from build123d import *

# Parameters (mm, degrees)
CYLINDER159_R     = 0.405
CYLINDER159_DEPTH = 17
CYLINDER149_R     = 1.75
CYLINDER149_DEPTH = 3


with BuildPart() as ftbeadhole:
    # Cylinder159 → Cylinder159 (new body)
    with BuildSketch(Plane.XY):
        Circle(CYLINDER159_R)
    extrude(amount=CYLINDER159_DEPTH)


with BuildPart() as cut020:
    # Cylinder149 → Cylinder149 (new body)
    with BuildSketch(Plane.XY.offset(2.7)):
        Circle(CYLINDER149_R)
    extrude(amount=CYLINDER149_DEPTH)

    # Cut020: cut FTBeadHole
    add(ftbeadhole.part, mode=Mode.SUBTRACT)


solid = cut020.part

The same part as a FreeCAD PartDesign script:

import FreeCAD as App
import Part
import Sketcher

V = App.Vector
Q = App.Units.Quantity

doc = App.newDocument("Part")
params = doc.addObject("Spreadsheet::Sheet", "Params")
for row, (alias, value) in enumerate([
    ("sketch1_diameter", "0.81 mm"),
    ("pad1_length", "17 mm"),
    ("sketch2_diameter", "3.5 mm"),
    ("pad2_length", "3 mm"),
], start=1):
    params.set(f"A{row}", alias)
    params.set(f"B{row}", "=" + value)
    params.setAlias(f"B{row}", alias)

body = doc.addObject("PartDesign::Body", "Body")

sketch1 = body.newObject("Sketcher::SketchObject", "Sketch")
sketch1.AttachmentSupport = (doc.getObject("XY_Plane"), [""])
sketch1.MapMode = "FlatFace"
sketch1.addGeometry(Part.Circle(V(0, 0, 0), V(0, 0, 1), 0.41), False)
sketch1.addConstraint([
    Sketcher.Constraint("Coincident", 0, 3, -1, 1),
    Sketcher.Constraint("Diameter", 0, Q("0.81 mm")),
])
sketch1.setExpression("Constraints[1]", "Params.sketch1_diameter")
pad1 = body.newObject("PartDesign::Pad", "Pad")
pad1.Profile = sketch1
pad1.setExpression("Length", "Params.pad1_length")
body2 = doc.addObject("PartDesign::Body", "Body001")

sketch2 = body2.newObject("Sketcher::SketchObject", "Sketch001")
sketch2.AttachmentSupport = (doc.getObject("XY_Plane001"), [""])
sketch2.MapMode = "FlatFace"
sketch2.AttachmentOffset = App.Placement(V(0, 0, 2.7), App.Rotation())
sketch2.addGeometry(Part.Circle(V(0, 0, 0), V(0, 0, 1), 1.8), False)
sketch2.addConstraint([
    Sketcher.Constraint("Coincident", 0, 3, -1, 1),
    Sketcher.Constraint("Diameter", 0, Q("3.5 mm")),
])
sketch2.setExpression("Constraints[1]", "Params.sketch2_diameter")
pad2 = body2.newObject("PartDesign::Pad", "Pad001")
pad2.Profile = sketch2
pad2.setExpression("Length", "Params.pad2_length")
doc.recompute()

boolean = body2.newObject("PartDesign::Boolean", "Boolean")
boolean.Type = "Cut"
boolean.addObjects([body])

doc.recompute()
